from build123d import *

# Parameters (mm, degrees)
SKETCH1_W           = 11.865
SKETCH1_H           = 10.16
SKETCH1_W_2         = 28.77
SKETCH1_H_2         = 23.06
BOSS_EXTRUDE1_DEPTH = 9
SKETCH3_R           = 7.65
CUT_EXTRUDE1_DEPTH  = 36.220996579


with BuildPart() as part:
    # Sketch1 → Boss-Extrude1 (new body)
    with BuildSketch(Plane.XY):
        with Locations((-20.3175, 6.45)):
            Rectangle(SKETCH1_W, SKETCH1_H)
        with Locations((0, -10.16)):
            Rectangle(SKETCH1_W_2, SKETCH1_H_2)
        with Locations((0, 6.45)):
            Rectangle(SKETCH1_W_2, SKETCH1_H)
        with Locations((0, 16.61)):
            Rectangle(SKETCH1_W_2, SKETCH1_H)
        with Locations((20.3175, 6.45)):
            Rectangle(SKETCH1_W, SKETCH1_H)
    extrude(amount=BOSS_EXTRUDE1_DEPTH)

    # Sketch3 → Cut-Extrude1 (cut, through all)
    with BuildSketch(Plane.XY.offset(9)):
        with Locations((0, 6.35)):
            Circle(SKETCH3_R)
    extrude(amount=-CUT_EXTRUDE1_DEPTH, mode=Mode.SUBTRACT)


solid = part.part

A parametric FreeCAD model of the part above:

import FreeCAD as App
import Part
import Sketcher

V = App.Vector
Q = App.Units.Quantity


def add_polygon(sketch, points):
    """Adds a closed chain of lines whose ends are joined by coincident constraints."""
    first, n = sketch.GeometryCount, len(points)
    for a, b in zip(points, points[1:] + points[:1]):
        sketch.addGeometry(Part.LineSegment(App.Vector(*a, 0), App.Vector(*b, 0)), False)
    for i in range(n):
        sketch.addConstraint(Sketcher.Constraint("Coincident", first + i, 2, first + (i + 1) % n, 1))

doc = App.newDocument("Part")
params = doc.addObject("Spreadsheet::Sheet", "Params")
for row, (alias, value) in enumerate([
    ("sketch1_width", "28.77 mm"),
    ("sketch1_height", "10.16 mm"),
    ("sketch1_height2", "23.06 mm"),
    ("pad1_length", "9 mm"),
    ("sketch2_diameter", "15.3 mm"),
], start=1):
    params.set(f"A{row}", alias)
    params.set(f"B{row}", "=" + value)
    params.setAlias(f"B{row}", alias)

body = doc.addObject("PartDesign::Body", "Body")

# Sketch on XY plane
sketch1 = body.newObject("Sketcher::SketchObject", "Sketch")
sketch1.AttachmentSupport = (doc.getObject("XY_Plane"), [""])
sketch1.MapMode = "FlatFace"
add_polygon(sketch1, [(-26, 12), (-26, 1), (-14, 1), (-14, -22), (14, -22), (14, 1), (26, 1), (26, 12), (14, 12), (14, 22), (-14, 22), (-14, 12)])  # lines 0-11
sketch1.addConstraint([
    Sketcher.Constraint("Vertical", 0),
    Sketcher.Constraint("Horizontal", 1),
    Sketcher.Constraint("Vertical", 2),
    Sketcher.Constraint("Horizontal", 3),
    Sketcher.Constraint("Vertical", 4),
    Sketcher.Constraint("Horizontal", 5),
    Sketcher.Constraint("Vertical", 6),
    Sketcher.Constraint("Horizontal", 7),
    Sketcher.Constraint("Vertical", 8),
    Sketcher.Constraint("Horizontal", 9),
    Sketcher.Constraint("Vertical", 10),
    Sketcher.Constraint("Horizontal", 11),
    Sketcher.Constraint("Symmetric", 2, 2, 8, 2, -1, 1),
    Sketcher.Constraint("Symmetric", 1, 2, 4, 2, -2),
    Sketcher.Constraint("Symmetric", 7, 2, 10, 2, -2),
    Sketcher.Constraint("Equal", 1, 5),
    Sketcher.Constraint("Equal", 6, 8),
    Sketcher.Constraint("DistanceX", 3, 1, 3, 2, Q("28.77 mm")),
    Sketcher.Constraint("DistanceY", 0, 2, 0, 1, Q("10.16 mm")),
    Sketcher.Constraint("DistanceY", 2, 2, 2, 1, Q("23.06 mm")),
    Sketcher.Constraint("DistanceX", 0, 2, 5, 2, Q("52.5 mm")),
])
sketch1.setExpression("Constraints[29]", "Params.sketch1_width")
sketch1.setExpression("Constraints[30]", "Params.sketch1_height")
sketch1.setExpression("Constraints[31]", "Params.sketch1_height2")
pad1 = body.newObject("PartDesign::Pad", "Pad")
pad1.Profile = sketch1
pad1.setExpression("Length", "Params.pad1_length")

# Sketch on XY plane
sketch2 = body.newObject("Sketcher::SketchObject", "Sketch001")
sketch2.AttachmentSupport = (doc.getObject("XY_Plane"), [""])
sketch2.MapMode = "FlatFace"
sketch2.AttachmentOffset = App.Placement(V(0, 0, 9), App.Rotation())
sketch2.addGeometry(Part.Circle(V(0, 6, 0), V(0, 0, 1), 8), False)
sketch2.addConstraint([
    Sketcher.Constraint("PointOnObject", 0, 3, -2),
    Sketcher.Constraint("Diameter", 0, Q("15.3 mm")),
    Sketcher.Constraint("DistanceY", -1, 1, 0, 3, Q("6.35 mm")),
])
sketch2.setExpression("Constraints[1]", "Params.sketch2_diameter")
pocket1 = body.newObject("PartDesign::Pocket", "Pocket")
pocket1.Profile = sketch2
pocket1.Type = "ThroughAll"

doc.recompute()
